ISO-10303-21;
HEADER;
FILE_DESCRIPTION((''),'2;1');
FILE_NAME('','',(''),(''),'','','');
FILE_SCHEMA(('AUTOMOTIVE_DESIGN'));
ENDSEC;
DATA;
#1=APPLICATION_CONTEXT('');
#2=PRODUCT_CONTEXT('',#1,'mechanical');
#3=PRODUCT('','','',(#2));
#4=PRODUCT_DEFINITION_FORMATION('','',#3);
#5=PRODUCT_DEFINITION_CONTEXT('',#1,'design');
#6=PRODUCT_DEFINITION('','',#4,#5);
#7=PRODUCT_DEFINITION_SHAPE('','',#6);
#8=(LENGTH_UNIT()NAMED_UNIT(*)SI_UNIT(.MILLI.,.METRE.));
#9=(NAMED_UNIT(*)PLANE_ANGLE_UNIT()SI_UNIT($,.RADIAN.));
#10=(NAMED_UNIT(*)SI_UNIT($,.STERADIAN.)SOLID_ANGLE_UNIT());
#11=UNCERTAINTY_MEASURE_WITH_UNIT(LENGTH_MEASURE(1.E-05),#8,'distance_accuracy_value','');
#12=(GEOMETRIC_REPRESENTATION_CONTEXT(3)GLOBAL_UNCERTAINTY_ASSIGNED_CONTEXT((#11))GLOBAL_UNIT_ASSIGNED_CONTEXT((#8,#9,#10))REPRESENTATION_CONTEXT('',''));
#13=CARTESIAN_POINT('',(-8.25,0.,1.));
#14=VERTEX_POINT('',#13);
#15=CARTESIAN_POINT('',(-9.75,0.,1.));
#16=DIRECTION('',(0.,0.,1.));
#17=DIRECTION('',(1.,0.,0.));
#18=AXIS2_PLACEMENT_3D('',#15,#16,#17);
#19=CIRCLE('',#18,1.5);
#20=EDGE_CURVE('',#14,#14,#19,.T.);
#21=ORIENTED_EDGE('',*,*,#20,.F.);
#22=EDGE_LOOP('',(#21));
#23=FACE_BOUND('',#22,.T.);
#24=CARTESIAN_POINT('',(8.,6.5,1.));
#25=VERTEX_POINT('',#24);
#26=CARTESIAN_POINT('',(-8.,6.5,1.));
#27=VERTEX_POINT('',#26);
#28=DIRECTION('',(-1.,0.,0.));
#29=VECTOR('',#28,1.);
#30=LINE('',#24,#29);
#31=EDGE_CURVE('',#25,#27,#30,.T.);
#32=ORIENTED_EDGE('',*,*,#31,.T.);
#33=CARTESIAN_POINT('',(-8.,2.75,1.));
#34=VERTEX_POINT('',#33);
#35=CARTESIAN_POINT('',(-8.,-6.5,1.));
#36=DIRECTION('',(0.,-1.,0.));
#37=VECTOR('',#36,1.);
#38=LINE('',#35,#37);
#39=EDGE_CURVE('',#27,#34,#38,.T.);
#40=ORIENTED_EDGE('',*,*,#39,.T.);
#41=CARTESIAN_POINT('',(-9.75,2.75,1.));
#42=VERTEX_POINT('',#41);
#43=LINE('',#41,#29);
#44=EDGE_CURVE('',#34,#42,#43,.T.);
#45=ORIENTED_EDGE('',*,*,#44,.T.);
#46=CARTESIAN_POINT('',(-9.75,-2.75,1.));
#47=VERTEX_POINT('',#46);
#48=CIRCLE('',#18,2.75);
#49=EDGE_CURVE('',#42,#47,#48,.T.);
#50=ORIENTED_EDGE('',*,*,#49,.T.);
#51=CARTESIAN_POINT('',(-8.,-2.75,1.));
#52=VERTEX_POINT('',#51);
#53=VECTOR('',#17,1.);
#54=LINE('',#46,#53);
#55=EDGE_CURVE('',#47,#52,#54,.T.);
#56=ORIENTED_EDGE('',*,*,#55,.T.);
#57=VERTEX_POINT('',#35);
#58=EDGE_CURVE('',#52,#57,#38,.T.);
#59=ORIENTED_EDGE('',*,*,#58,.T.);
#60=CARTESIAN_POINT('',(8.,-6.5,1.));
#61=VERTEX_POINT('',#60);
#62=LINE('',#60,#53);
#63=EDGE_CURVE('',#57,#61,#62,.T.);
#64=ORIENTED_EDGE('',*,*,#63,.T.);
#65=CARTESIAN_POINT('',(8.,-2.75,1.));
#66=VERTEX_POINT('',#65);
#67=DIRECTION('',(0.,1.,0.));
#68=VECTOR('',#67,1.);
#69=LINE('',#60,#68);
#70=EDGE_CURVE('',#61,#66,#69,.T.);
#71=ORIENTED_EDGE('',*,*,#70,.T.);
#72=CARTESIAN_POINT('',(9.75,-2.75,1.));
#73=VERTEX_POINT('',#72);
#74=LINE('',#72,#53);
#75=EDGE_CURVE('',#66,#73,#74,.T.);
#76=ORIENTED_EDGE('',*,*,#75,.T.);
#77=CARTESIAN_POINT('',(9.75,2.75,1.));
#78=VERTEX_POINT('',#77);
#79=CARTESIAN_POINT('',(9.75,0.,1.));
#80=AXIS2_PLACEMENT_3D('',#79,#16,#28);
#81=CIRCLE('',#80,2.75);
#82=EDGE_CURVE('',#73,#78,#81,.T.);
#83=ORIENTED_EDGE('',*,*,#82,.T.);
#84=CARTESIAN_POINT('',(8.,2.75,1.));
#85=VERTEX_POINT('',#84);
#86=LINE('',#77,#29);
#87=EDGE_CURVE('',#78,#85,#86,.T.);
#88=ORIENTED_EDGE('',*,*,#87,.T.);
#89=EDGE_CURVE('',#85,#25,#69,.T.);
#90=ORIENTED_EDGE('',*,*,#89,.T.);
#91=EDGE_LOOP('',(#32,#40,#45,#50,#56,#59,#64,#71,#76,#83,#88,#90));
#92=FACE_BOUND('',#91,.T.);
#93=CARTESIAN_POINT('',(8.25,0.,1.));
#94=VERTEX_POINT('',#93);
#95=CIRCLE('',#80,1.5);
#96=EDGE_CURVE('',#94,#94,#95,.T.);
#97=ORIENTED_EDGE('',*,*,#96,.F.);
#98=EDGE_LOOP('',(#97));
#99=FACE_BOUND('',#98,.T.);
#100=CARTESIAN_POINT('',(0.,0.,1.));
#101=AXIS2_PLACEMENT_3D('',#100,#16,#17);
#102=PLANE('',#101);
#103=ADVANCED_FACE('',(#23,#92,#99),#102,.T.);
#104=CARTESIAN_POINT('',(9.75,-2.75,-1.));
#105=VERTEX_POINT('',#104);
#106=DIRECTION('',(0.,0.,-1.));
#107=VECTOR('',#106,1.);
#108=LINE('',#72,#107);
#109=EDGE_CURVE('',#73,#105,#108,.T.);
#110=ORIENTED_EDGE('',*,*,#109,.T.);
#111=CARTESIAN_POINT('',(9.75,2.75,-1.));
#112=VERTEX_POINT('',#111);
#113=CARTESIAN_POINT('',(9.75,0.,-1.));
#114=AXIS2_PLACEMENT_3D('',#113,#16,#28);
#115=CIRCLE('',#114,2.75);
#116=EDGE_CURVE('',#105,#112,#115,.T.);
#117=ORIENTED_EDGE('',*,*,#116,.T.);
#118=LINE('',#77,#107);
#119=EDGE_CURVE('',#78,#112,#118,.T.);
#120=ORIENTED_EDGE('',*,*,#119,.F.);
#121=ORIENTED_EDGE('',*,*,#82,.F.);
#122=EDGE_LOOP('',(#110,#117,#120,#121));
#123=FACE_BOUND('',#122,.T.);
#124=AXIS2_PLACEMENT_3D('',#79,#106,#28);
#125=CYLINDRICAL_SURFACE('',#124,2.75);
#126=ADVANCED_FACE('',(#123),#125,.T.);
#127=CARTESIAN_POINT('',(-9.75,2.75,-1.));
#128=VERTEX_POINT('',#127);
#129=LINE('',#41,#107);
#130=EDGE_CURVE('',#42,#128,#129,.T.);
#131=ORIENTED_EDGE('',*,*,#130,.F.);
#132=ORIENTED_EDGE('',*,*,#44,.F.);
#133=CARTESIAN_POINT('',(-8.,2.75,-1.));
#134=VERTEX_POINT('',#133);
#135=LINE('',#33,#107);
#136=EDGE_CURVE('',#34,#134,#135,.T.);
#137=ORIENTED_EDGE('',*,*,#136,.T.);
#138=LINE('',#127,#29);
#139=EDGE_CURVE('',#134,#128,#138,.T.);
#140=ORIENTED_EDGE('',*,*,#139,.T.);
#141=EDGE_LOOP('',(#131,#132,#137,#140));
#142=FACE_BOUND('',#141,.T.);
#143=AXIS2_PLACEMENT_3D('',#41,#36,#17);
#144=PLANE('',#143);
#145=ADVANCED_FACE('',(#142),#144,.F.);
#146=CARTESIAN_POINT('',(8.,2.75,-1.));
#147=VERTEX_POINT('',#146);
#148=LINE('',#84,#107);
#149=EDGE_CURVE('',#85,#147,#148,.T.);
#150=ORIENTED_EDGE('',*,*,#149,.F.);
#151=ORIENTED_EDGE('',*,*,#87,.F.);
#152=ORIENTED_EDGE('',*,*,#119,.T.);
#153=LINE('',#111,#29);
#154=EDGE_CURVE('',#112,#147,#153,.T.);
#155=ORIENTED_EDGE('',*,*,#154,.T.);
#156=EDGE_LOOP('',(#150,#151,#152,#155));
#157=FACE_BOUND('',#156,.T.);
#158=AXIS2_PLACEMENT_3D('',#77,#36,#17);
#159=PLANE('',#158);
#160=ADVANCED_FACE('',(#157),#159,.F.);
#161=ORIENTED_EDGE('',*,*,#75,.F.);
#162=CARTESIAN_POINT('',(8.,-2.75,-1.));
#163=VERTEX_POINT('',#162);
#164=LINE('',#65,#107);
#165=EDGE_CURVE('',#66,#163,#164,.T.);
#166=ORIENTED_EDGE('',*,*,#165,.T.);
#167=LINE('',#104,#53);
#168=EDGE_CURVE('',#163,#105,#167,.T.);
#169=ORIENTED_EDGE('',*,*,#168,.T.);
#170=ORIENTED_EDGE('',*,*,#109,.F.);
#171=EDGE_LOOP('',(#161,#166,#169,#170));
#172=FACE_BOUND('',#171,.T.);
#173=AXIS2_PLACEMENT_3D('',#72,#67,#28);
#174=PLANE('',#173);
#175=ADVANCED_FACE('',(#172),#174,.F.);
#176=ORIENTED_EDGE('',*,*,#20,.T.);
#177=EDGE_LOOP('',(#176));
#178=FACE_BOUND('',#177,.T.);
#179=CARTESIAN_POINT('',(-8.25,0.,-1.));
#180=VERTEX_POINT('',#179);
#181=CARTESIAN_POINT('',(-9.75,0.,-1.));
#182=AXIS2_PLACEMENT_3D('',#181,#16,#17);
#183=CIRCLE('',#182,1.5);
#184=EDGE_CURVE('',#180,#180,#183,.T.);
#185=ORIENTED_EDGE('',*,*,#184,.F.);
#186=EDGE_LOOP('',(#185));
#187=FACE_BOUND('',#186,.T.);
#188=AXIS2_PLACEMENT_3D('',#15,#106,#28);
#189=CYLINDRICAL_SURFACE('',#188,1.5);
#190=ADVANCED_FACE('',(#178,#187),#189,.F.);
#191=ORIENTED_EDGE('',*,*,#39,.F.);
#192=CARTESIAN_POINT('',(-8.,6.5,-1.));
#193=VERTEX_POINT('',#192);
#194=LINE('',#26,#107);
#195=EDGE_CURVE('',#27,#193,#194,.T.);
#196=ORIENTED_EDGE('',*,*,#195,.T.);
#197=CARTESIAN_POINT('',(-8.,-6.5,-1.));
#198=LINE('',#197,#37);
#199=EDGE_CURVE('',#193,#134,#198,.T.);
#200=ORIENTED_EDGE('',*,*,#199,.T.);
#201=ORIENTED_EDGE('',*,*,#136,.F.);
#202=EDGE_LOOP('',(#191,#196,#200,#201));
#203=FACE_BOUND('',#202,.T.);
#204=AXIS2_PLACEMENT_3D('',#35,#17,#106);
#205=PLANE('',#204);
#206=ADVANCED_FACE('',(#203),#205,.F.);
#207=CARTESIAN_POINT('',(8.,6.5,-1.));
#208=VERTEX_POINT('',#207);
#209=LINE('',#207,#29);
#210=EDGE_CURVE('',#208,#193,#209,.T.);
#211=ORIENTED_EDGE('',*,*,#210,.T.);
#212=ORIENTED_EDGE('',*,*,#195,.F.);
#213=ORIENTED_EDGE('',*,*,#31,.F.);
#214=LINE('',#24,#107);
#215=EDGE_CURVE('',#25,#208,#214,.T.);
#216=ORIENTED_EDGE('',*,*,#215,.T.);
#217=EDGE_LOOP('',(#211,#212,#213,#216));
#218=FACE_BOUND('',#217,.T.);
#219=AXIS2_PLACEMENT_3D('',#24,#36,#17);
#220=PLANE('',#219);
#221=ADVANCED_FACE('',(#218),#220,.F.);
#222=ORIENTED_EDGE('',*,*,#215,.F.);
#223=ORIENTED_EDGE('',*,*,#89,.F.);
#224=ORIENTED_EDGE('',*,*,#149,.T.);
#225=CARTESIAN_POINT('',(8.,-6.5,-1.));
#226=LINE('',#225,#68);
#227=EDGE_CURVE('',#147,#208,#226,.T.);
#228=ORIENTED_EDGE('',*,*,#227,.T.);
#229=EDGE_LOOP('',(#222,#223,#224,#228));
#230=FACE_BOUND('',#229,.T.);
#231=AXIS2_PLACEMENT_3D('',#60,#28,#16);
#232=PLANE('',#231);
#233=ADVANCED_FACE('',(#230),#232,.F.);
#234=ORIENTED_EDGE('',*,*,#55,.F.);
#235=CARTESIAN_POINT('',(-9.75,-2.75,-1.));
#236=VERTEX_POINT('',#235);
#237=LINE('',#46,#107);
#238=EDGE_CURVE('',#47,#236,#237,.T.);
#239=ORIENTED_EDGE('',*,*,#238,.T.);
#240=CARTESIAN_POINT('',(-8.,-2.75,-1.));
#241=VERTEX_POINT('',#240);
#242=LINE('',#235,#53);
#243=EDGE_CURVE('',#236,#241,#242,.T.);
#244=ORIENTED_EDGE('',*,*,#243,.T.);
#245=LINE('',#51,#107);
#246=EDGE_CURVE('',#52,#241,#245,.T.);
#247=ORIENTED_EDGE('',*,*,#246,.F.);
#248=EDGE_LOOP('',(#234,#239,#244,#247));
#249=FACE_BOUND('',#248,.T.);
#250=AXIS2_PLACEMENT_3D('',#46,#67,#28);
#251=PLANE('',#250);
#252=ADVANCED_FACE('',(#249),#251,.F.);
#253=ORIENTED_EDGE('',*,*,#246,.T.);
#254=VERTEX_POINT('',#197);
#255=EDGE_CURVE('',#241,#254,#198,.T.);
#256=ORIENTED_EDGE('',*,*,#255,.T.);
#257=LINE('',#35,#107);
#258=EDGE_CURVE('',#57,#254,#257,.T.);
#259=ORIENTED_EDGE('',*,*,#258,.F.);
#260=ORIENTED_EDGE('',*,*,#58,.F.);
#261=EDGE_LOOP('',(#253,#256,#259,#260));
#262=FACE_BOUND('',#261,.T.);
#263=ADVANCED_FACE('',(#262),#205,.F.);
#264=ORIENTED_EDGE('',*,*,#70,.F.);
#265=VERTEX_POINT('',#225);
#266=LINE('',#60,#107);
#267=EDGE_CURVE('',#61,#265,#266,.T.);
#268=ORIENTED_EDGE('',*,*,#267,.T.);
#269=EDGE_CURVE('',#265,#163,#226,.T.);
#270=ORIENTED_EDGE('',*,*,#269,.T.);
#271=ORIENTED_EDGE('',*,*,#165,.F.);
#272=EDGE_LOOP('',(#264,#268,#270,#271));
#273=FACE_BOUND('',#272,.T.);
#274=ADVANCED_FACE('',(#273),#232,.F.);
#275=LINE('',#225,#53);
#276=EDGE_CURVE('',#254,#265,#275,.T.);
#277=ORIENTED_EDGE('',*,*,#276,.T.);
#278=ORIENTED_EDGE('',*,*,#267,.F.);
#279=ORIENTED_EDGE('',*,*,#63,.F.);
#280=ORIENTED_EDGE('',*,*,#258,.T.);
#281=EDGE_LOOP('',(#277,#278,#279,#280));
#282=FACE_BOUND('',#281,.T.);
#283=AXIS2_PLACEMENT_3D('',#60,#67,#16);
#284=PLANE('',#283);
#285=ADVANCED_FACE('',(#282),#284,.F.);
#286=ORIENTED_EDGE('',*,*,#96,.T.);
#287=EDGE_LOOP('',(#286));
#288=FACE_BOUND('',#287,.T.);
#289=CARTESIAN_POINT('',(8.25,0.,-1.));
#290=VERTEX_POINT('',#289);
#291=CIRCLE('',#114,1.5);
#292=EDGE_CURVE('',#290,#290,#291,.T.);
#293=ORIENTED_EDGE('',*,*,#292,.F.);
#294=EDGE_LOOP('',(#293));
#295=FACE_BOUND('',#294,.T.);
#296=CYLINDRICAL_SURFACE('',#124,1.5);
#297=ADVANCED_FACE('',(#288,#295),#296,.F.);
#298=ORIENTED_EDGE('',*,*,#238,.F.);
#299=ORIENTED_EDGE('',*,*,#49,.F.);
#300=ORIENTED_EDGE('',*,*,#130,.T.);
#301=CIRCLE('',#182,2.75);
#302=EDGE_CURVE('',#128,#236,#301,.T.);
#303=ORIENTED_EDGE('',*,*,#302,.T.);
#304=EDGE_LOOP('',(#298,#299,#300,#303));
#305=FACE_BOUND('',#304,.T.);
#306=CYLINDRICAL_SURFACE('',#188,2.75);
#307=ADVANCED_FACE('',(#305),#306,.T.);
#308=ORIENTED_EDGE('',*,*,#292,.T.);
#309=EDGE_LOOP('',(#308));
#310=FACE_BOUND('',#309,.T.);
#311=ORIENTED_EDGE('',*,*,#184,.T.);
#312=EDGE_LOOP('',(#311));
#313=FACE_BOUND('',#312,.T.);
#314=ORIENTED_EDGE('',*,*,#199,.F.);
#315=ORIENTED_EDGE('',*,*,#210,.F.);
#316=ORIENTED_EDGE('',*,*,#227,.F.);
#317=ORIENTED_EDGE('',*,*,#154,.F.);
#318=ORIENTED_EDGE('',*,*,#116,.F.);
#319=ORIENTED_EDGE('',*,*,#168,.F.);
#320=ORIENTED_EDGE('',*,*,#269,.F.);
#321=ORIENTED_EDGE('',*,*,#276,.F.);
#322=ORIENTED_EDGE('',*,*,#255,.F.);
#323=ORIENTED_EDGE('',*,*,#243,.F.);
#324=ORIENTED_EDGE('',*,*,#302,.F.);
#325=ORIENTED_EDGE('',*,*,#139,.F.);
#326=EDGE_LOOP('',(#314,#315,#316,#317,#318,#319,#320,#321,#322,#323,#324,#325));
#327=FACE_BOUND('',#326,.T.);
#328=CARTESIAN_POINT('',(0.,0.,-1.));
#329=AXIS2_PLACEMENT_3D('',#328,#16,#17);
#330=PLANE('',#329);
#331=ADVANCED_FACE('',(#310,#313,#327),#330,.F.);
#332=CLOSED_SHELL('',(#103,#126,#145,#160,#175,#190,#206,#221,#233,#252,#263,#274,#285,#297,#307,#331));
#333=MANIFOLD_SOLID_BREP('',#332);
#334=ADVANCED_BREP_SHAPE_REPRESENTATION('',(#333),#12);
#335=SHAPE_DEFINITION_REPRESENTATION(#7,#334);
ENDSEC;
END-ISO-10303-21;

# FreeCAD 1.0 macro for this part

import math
import FreeCAD as App
import Part
import Sketcher

V = App.Vector

doc = App.newDocument("Part")
params = doc.addObject("Spreadsheet::Sheet", "Params")
for row, (alias, value) in enumerate([
    ("sketch1_width", "16 mm"),
    ("sketch1_height", "13 mm"),
    ("pad1_length", "2 mm"),
    ("sketch2_diameter", "3 mm"),
    ("sketch2_radius", "2.75 mm"),
    ("sketch2_width", "1.75 mm"),
    ("pad2_length", "2 mm"),
], start=1):
    params.set(f"A{row}", alias)
    params.set(f"B{row}", "=" + value)
    params.setAlias(f"B{row}", alias)

body = doc.addObject("PartDesign::Body", "Body")

# Sketch on XY plane
sketch1 = doc.addObject("Sketcher::SketchObject", "Sketch")
body.addObject(sketch1)
sketch1.AttachmentSupport = (doc.XY_Plane, [""])
sketch1.MapMode = "FlatFace"
sketch1.addGeometry(Part.LineSegment(V(-8, 6, 0), V(-8, -6, 0)), False)
sketch1.addGeometry(Part.LineSegment(V(-8, -6, 0), V(8, -6, 0)), False)
sketch1.addGeometry(Part.LineSegment(V(8, -6, 0), V(8, 6, 0)), False)
sketch1.addGeometry(Part.LineSegment(V(8, 6, 0), V(-8, 6, 0)), False)
sketch1.addConstraint(Sketcher.Constraint("Coincident", 0, 2, 1, 1))
sketch1.addConstraint(Sketcher.Constraint("Coincident", 1, 2, 2, 1))
sketch1.addConstraint(Sketcher.Constraint("Coincident", 2, 2, 3, 1))
sketch1.addConstraint(Sketcher.Constraint("Coincident", 3, 2, 0, 1))
sketch1.addConstraint(Sketcher.Constraint("Vertical", 0))
sketch1.addConstraint(Sketcher.Constraint("Horizontal", 1))
sketch1.addConstraint(Sketcher.Constraint("Vertical", 2))
sketch1.addConstraint(Sketcher.Constraint("Horizontal", 3))
sketch1.addConstraint(Sketcher.Constraint("Symmetric", 0, 2, 2, 2, -1, 1))
sketch1.addConstraint(Sketcher.Constraint("DistanceX", 1, 1, 1, 2, 16.0))
sketch1.addConstraint(Sketcher.Constraint("DistanceY", 0, 2, 0, 1, 13.0))
sketch1.setExpression("Constraints[9]", "Params.sketch1_width")
sketch1.setExpression("Constraints[10]", "Params.sketch1_height")
pad1 = doc.addObject("PartDesign::Pad", "Pad")
body.addObject(pad1)
pad1.Profile = sketch1
pad1.setExpression("Length", "Params.pad1_length")
pad1.Midplane = True

# Sketch on XY plane
sketch2 = doc.addObject("Sketcher::SketchObject", "Sketch001")
body.addObject(sketch2)
sketch2.AttachmentSupport = (doc.XY_Plane, [""])
sketch2.MapMode = "FlatFace"
sketch2.addGeometry(Part.LineSegment(V(-8, 2.8, 0), V(-9.8, 2.8, 0)), False)
sketch2.addGeometry(Part.ArcOfCircle(Part.Circle(V(-9.8, 0, 0), V(0, 0, 1), 2.8), math.radians(90), math.radians(270)), False)
sketch2.addGeometry(Part.LineSegment(V(-9.8, -2.8, 0), V(-8, -2.8, 0)), False)
sketch2.addGeometry(Part.LineSegment(V(-8, -2.8, 0), V(-8, 2.8, 0)), False)
sketch2.addGeometry(Part.Circle(V(-9.8, 0, 0), V(0, 0, 1), 1.5), False)
sketch2.addGeometry(Part.LineSegment(V(8, -2.8, 0), V(9.8, -2.8, 0)), False)
sketch2.addGeometry(Part.ArcOfCircle(Part.Circle(V(9.8, 0, 0), V(0, 0, 1), 2.8), math.radians(-90), math.radians(90)), False)
sketch2.addGeometry(Part.LineSegment(V(9.8, 2.8, 0), V(8, 2.8, 0)), False)
sketch2.addGeometry(Part.LineSegment(V(8, 2.8, 0), V(8, -2.8, 0)), False)
sketch2.addGeometry(Part.Circle(V(9.8, 0, 0), V(0, 0, 1), 1.5), False)
sketch2.addConstraint(Sketcher.Constraint("Tangent", 0, 2, 1, 1))
sketch2.addConstraint(Sketcher.Constraint("Tangent", 1, 2, 2, 1))
sketch2.addConstraint(Sketcher.Constraint("Coincident", 2, 2, 3, 1))
sketch2.addConstraint(Sketcher.Constraint("Coincident", 3, 2, 0, 1))
sketch2.addConstraint(Sketcher.Constraint("Tangent", 5, 2, 6, 1))
sketch2.addConstraint(Sketcher.Constraint("Tangent", 6, 2, 7, 1))
sketch2.addConstraint(Sketcher.Constraint("Coincident", 7, 2, 8, 1))
sketch2.addConstraint(Sketcher.Constraint("Coincident", 8, 2, 5, 1))
sketch2.addConstraint(Sketcher.Constraint("Horizontal", 0))
sketch2.addConstraint(Sketcher.Constraint("Horizontal", 2))
sketch2.addConstraint(Sketcher.Constraint("Vertical", 3))
sketch2.addConstraint(Sketcher.Constraint("Horizontal", 5))
sketch2.addConstraint(Sketcher.Constraint("Horizontal", 7))
sketch2.addConstraint(Sketcher.Constraint("Vertical", 8))
sketch2.addConstraint(Sketcher.Constraint("Coincident", 4, 3, 1, 3))
sketch2.addConstraint(Sketcher.Constraint("Coincident", 9, 3, 6, 3))
sketch2.addConstraint(Sketcher.Constraint("Equal", 1, 6))
sketch2.addConstraint(Sketcher.Constraint("Equal", 4, 9))
sketch2.addConstraint(Sketcher.Constraint("Symmetric", 1, 3, 6, 3, -1, 1))
sketch2.addConstraint(Sketcher.Constraint("Symmetric", 3, 2, 7, 2, -2))
sketch2.addConstraint(Sketcher.Constraint("Diameter", 4, 3.0))
sketch2.addConstraint(Sketcher.Constraint("Radius", 1, 2.75))
sketch2.addConstraint(Sketcher.Constraint("DistanceX", 2, 2, -1, 1, 8.0))
sketch2.addConstraint(Sketcher.Constraint("DistanceX", 0, 2, 0, 1, 1.75))
sketch2.setExpression("Constraints[20]", "Params.sketch2_diameter")
sketch2.setExpression("Constraints[21]", "Params.sketch2_radius")
sketch2.setExpression("Constraints[23]", "Params.sketch2_width")
pad2 = doc.addObject("PartDesign::Pad", "Pad001")
body.addObject(pad2)
pad2.Profile = sketch2
pad2.setExpression("Length", "Params.pad2_length")
pad2.Midplane = True

doc.recompute()
